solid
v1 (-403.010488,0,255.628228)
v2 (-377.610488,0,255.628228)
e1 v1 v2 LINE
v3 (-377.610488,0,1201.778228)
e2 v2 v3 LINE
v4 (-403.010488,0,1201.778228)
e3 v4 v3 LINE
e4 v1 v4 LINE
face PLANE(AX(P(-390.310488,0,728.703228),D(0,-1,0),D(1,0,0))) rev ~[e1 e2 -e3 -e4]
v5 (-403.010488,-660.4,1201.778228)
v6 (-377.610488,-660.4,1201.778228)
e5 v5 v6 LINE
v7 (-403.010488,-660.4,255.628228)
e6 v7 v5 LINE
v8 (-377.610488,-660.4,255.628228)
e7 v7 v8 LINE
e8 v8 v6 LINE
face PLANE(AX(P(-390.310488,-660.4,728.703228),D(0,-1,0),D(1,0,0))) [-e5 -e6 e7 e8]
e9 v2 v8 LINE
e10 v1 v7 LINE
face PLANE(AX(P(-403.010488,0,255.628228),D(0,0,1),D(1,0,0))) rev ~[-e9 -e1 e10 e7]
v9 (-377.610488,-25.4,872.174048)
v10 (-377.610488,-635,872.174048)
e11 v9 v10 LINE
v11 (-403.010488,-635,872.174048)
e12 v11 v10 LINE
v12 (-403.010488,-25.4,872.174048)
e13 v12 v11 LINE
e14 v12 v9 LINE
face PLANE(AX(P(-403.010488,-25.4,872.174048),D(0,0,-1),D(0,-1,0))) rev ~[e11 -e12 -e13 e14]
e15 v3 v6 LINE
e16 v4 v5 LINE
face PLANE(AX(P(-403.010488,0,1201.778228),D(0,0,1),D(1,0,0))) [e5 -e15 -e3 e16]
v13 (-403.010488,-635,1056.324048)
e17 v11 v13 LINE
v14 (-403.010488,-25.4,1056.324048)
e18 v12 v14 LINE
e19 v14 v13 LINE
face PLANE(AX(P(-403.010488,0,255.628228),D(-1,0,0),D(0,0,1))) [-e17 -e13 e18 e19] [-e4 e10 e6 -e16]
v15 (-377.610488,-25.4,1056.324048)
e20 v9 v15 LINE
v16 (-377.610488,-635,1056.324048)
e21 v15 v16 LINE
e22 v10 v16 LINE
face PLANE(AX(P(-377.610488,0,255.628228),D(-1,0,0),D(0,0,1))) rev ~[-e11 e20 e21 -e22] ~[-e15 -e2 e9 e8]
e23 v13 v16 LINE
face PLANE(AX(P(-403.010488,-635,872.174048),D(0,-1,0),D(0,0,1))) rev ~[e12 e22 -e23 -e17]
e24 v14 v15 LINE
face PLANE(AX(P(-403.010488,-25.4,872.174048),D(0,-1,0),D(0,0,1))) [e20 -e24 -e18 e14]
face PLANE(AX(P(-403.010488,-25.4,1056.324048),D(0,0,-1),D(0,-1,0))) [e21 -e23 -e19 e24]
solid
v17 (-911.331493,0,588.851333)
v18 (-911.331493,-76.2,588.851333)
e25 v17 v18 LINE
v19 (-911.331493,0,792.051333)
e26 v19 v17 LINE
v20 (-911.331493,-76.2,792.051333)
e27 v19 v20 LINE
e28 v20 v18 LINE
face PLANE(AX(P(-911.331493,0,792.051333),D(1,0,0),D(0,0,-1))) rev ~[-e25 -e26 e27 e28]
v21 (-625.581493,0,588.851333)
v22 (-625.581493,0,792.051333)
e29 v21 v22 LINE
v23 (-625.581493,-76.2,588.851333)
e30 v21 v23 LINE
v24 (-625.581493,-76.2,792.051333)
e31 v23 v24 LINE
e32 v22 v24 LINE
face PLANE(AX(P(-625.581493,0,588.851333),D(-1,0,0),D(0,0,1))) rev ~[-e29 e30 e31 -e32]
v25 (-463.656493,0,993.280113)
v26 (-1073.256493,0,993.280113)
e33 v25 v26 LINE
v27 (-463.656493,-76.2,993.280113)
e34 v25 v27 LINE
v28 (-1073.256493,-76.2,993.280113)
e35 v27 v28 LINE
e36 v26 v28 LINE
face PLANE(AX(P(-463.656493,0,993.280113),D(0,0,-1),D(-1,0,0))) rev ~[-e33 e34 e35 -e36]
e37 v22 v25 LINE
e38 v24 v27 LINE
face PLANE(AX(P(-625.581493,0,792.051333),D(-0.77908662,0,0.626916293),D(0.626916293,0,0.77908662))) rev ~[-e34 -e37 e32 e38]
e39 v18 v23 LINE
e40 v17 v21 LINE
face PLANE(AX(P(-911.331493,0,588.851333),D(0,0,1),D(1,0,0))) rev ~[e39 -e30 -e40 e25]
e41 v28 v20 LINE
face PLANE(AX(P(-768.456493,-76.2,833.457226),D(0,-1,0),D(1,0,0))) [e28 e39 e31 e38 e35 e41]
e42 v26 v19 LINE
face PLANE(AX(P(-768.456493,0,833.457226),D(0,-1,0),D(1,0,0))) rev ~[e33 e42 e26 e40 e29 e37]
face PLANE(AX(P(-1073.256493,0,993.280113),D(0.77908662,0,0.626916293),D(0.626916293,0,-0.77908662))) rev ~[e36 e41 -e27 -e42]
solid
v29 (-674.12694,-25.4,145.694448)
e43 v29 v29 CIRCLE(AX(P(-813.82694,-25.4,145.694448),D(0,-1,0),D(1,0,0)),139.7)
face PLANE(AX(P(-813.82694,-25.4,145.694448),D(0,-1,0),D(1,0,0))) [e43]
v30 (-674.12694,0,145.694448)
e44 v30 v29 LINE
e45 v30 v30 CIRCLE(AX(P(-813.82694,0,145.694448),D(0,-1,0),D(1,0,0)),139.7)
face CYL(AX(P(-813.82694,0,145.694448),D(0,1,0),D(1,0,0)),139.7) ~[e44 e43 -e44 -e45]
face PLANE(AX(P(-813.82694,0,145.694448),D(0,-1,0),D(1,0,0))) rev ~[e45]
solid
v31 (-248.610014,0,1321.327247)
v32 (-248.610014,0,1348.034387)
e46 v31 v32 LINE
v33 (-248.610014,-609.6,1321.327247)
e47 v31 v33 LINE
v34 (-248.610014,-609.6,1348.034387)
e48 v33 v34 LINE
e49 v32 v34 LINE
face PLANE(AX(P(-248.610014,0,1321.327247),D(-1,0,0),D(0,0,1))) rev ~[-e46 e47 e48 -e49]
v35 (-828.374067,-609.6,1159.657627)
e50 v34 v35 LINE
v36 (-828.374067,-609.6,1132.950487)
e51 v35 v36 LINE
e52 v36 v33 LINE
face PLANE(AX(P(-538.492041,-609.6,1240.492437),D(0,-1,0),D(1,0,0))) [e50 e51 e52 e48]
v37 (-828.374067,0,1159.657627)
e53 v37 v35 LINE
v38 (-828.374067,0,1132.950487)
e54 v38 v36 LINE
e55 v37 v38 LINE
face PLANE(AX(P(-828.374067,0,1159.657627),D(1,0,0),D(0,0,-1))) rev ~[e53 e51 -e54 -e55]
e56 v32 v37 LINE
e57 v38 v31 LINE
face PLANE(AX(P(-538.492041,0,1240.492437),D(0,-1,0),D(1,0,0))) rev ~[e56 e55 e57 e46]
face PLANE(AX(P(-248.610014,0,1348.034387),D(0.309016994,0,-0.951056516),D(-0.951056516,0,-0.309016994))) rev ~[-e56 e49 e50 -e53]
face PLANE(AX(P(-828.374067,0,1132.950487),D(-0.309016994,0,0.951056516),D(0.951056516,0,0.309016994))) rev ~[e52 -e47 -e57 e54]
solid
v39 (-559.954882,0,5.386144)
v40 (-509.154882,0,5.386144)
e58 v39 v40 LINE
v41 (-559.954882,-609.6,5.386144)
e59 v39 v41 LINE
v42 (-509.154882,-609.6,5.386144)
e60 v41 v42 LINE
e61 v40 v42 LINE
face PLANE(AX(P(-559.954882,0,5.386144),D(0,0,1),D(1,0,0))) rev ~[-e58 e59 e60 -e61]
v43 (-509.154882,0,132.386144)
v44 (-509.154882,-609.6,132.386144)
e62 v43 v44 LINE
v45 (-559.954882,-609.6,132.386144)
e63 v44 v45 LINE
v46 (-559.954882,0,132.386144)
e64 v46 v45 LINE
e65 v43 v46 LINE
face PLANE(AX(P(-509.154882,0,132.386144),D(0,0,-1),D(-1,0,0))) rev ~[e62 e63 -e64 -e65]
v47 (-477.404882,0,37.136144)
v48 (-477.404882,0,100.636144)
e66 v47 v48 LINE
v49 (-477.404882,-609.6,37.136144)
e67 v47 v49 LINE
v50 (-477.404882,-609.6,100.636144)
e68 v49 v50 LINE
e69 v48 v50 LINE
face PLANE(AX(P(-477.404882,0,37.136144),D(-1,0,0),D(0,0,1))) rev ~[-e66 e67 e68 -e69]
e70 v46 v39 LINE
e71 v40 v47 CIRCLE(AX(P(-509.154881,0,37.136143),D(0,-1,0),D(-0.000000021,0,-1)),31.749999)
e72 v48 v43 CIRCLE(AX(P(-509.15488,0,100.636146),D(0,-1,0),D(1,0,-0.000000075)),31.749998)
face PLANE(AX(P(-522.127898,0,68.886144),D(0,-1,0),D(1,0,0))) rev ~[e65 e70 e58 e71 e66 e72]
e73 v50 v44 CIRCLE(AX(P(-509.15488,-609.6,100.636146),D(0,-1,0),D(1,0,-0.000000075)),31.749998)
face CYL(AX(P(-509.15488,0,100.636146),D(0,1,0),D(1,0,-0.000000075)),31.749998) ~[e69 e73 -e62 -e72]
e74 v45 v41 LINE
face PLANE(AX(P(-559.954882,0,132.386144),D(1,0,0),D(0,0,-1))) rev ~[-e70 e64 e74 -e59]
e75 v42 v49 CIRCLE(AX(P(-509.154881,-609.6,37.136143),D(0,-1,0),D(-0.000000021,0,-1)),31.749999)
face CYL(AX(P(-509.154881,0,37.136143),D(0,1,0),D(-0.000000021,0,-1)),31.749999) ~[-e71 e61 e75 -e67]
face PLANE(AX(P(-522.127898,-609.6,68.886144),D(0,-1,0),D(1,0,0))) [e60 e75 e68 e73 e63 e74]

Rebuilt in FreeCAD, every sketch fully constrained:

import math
import FreeCAD as App
import Part
import Sketcher
from FreeCAD import Vector
Q = App.Units.Quantity

doc = App.newDocument("Part")
body = doc.addObject("PartDesign::Body", "Body")

# Sketch on XZ plane
sketch1 = doc.addObject("Sketcher::SketchObject", "Sketch")
body.addObject(sketch1)
sketch1.AttachmentSupport = (doc.XZ_Plane, [""])
sketch1.MapMode = "FlatFace"
sketch1.addGeometry(Part.Circle(Vector(-813.82694, 145.694448, 0), Vector(0, 0, 1), 139.7), False)
sketch1.addConstraint(Sketcher.Constraint("Diameter", 0, Q("11 in")))
sketch1.addConstraint(Sketcher.Constraint("DistanceX", 0, 3, -1, 1, Q("813.82694 mm")))
sketch1.addConstraint(Sketcher.Constraint("DistanceY", -1, 1, 0, 3, Q("145.694448 mm")))
pad1 = doc.addObject("PartDesign::Pad", "Pad")
body.addObject(pad1)
pad1.Profile = sketch1
pad1.Length = Q("1 in")
body2 = doc.addObject("PartDesign::Body", "Body001")

# Sketch on XZ plane
sketch2 = doc.addObject("Sketcher::SketchObject", "Sketch001")
body2.addObject(sketch2)
sketch2.AttachmentSupport = (doc.getObject("XZ_Plane001"), [""])
sketch2.MapMode = "FlatFace"
sketch2.addGeometry(Part.LineSegment(Vector(-559.954882, 132.386144, 0), Vector(-559.954882, 5.386144, 0)), False)
sketch2.addGeometry(Part.LineSegment(Vector(-559.954882, 5.386144, 0), Vector(-509.154882, 5.386144, 0)), False)
sketch2.addGeometry(Part.ArcOfCircle(Part.Circle(Vector(-509.154881, 37.136143, 0), Vector(0, 0, 1), 31.749999), math.radians(-90.000001), math.radians(0.000001)), False)
sketch2.addGeometry(Part.LineSegment(Vector(-477.404882, 37.136144, 0), Vector(-477.404882, 100.636144, 0)), False)
sketch2.addGeometry(Part.ArcOfCircle(Part.Circle(Vector(-509.15488, 100.636146, 0), Vector(0, 0, 1), 31.749998), math.radians(-0.000004), math.radians(90.000004)), False)
sketch2.addGeometry(Part.LineSegment(Vector(-509.154882, 132.386144, 0), Vector(-559.954882, 132.386144, 0)), False)
sketch2.addConstraint(Sketcher.Constraint("Coincident", 0, 2, 1, 1))
sketch2.addConstraint(Sketcher.Constraint("Tangent", 1, 2, 2, 1))
sketch2.addConstraint(Sketcher.Constraint("Tangent", 2, 2, 3, 1))
sketch2.addConstraint(Sketcher.Constraint("Tangent", 3, 2, 4, 1))
sketch2.addConstraint(Sketcher.Constraint("Tangent", 4, 2, 5, 1))
sketch2.addConstraint(Sketcher.Constraint("Coincident", 5, 2, 0, 1))
sketch2.addConstraint(Sketcher.Constraint("Vertical", 0))
sketch2.addConstraint(Sketcher.Constraint("Horizontal", 1))
sketch2.addConstraint(Sketcher.Constraint("Vertical", 3))
sketch2.addConstraint(Sketcher.Constraint("Horizontal", 5))
sketch2.addConstraint(Sketcher.Constraint("Equal", 2, 4))
sketch2.addConstraint(Sketcher.Constraint("DistanceX", 1, 1, 1, 2, Q("2 in")))
sketch2.addConstraint(Sketcher.Constraint("DistanceY", 0, 2, 0, 1, Q("5 in")))
sketch2.addConstraint(Sketcher.Constraint("Radius", 2, Q("1.25 in")))
sketch2.addConstraint(Sketcher.Constraint("DistanceX", 2, 3, -1, 1, Q("509.154881 mm")))
sketch2.addConstraint(Sketcher.Constraint("DistanceY", -1, 1, 2, 3, Q("37.136143 mm")))
pad2 = doc.addObject("PartDesign::Pad", "Pad001")
body2.addObject(pad2)
pad2.Profile = sketch2
pad2.Length = Q("24 in")
body3 = doc.addObject("PartDesign::Body", "Body002")

# Sketch on XZ plane
sketch3 = doc.addObject("Sketcher::SketchObject", "Sketch002")
body3.addObject(sketch3)
sketch3.AttachmentSupport = (doc.getObject("XZ_Plane002"), [""])
sketch3.MapMode = "FlatFace"
sketch3.addGeometry(Part.LineSegment(Vector(-403.010488, 1201.778228, 0), Vector(-403.010488, 255.628228, 0)), False)
sketch3.addGeometry(Part.LineSegment(Vector(-403.010488, 255.628228, 0), Vector(-377.610488, 255.628228, 0)), False)
sketch3.addGeometry(Part.LineSegment(Vector(-377.610488, 255.628228, 0), Vector(-377.610488, 1201.778228, 0)), False)
sketch3.addGeometry(Part.LineSegment(Vector(-377.610488, 1201.778228, 0), Vector(-403.010488, 1201.778228, 0)), False)
sketch3.addConstraint(Sketcher.Constraint("Coincident", 0, 2, 1, 1))
sketch3.addConstraint(Sketcher.Constraint("Coincident", 1, 2, 2, 1))
sketch3.addConstraint(Sketcher.Constraint("Coincident", 2, 2, 3, 1))
sketch3.addConstraint(Sketcher.Constraint("Coincident", 3, 2, 0, 1))
sketch3.addConstraint(Sketcher.Constraint("Vertical", 0))
sketch3.addConstraint(Sketcher.Constraint("Horizontal", 1))
sketch3.addConstraint(Sketcher.Constraint("Vertical", 2))
sketch3.addConstraint(Sketcher.Constraint("Horizontal", 3))
sketch3.addConstraint(Sketcher.Constraint("DistanceX", 1, 1, 1, 2, Q("1 in")))
sketch3.addConstraint(Sketcher.Constraint("DistanceY", 0, 2, 0, 1, Q("37.25 in")))
sketch3.addConstraint(Sketcher.Constraint("DistanceX", 0, 2, -1, 1, Q("403.010488 mm")))
sketch3.addConstraint(Sketcher.Constraint("DistanceY", -1, 1, 0, 2, Q("255.628228 mm")))
pad3 = doc.addObject("PartDesign::Pad", "Pad002")
body3.addObject(pad3)
pad3.Profile = sketch3
pad3.Length = Q("26 in")

# Sketch on YZ plane
sketch4 = doc.addObject("Sketcher::SketchObject", "Sketch003")
body3.addObject(sketch4)
sketch4.AttachmentSupport = (doc.getObject("YZ_Plane002"), [""])
sketch4.MapMode = "FlatFace"
sketch4.AttachmentOffset = App.Placement(Vector(0, 0, -403.010488), App.Rotation())
sketch4.addGeometry(Part.LineSegment(Vector(-25.4, 1056.324048, 0), Vector(-25.4, 872.174048, 0)), False)
sketch4.addGeometry(Part.LineSegment(Vector(-25.4, 872.174048, 0), Vector(-635, 872.174048, 0)), False)
sketch4.addGeometry(Part.LineSegment(Vector(-635, 872.174048, 0), Vector(-635, 1056.324048, 0)), False)
sketch4.addGeometry(Part.LineSegment(Vector(-635, 1056.324048, 0), Vector(-25.4, 1056.324048, 0)), False)
sketch4.addConstraint(Sketcher.Constraint("Coincident", 0, 2, 1, 1))
sketch4.addConstraint(Sketcher.Constraint("Coincident", 1, 2, 2, 1))
sketch4.addConstraint(Sketcher.Constraint("Coincident", 2, 2, 3, 1))
sketch4.addConstraint(Sketcher.Constraint("Coincident", 3, 2, 0, 1))
sketch4.addConstraint(Sketcher.Constraint("Vertical", 0))
sketch4.addConstraint(Sketcher.Constraint("Horizontal", 1))
sketch4.addConstraint(Sketcher.Constraint("Vertical", 2))
sketch4.addConstraint(Sketcher.Constraint("Horizontal", 3))
sketch4.addConstraint(Sketcher.Constraint("DistanceX", 1, 2, 1, 1, Q("24 in")))
sketch4.addConstraint(Sketcher.Constraint("DistanceX", 0, 2, -1, 1, Q("1 in")))
sketch4.addConstraint(Sketcher.Constraint("DistanceY", 0, 2, 0, 1, Q("7.25 in")))
sketch4.addConstraint(Sketcher.Constraint("DistanceY", -1, 1, 0, 2, Q("872.174048 mm")))
pocket1 = doc.addObject("PartDesign::Pocket", "Pocket")
body3.addObject(pocket1)
pocket1.Profile = sketch4
pocket1.Length = Q("1.1 in")
pocket1.Reversed = True
body4 = doc.addObject("PartDesign::Body", "Body003")

# Sketch on XZ plane
sketch5 = doc.addObject("Sketcher::SketchObject", "Sketch004")
body4.addObject(sketch5)
sketch5.AttachmentSupport = (doc.getObject("XZ_Plane003"), [""])
sketch5.MapMode = "FlatFace"
sketch5.addGeometry(Part.LineSegment(Vector(-248.610014, 1348.034387, 0), Vector(-828.374067, 1159.657627, 0)), False)
sketch5.addGeometry(Part.LineSegment(Vector(-828.374067, 1159.657627, 0), Vector(-828.374067, 1132.950487, 0)), False)
sketch5.addGeometry(Part.LineSegment(Vector(-828.374067, 1132.950487, 0), Vector(-248.610014, 1321.327247, 0)), False)
sketch5.addGeometry(Part.LineSegment(Vector(-248.610014, 1321.327247, 0), Vector(-248.610014, 1348.034387, 0)), False)
sketch5.addConstraint(Sketcher.Constraint("Coincident", 0, 2, 1, 1))
sketch5.addConstraint(Sketcher.Constraint("Coincident", 1, 2, 2, 1))
sketch5.addConstraint(Sketcher.Constraint("Coincident", 2, 2, 3, 1))
sketch5.addConstraint(Sketcher.Constraint("Coincident", 3, 2, 0, 1))
sketch5.addConstraint(Sketcher.Constraint("Vertical", 1))
sketch5.addConstraint(Sketcher.Constraint("Vertical", 3))
sketch5.addConstraint(Sketcher.Constraint("Parallel", 0, 2))
sketch5.addConstraint(Sketcher.Constraint("Distance", 0, Q("24 in")))
sketch5.addConstraint(Sketcher.Constraint("Angle", 0, Q("-162 deg")))
sketch5.addConstraint(Sketcher.Constraint("DistanceY", 1, 2, 1, 1, Q("26.70714 mm")))
sketch5.addConstraint(Sketcher.Constraint("DistanceX", 0, 2, -1, 1, Q("828.374067 mm")))
sketch5.addConstraint(Sketcher.Constraint("DistanceY", -1, 1, 0, 2, Q("1159.657627 mm")))
pad4 = doc.addObject("PartDesign::Pad", "Pad003")
body4.addObject(pad4)
pad4.Profile = sketch5
pad4.Length = Q("24 in")
body5 = doc.addObject("PartDesign::Body", "Body004")

# Sketch on XZ plane
sketch6 = doc.addObject("Sketcher::SketchObject", "Sketch005")
body5.addObject(sketch6)
sketch6.AttachmentSupport = (doc.getObject("XZ_Plane004"), [""])
sketch6.MapMode = "FlatFace"
sketch6.addGeometry(Part.LineSegment(Vector(-463.656493, 993.280113, 0), Vector(-1073.256493, 993.280113, 0)), False)
sketch6.addGeometry(Part.LineSegment(Vector(-1073.256493, 993.280113, 0), Vector(-911.331493, 792.051333, 0)), False)
sketch6.addGeometry(Part.LineSegment(Vector(-911.331493, 792.051333, 0), Vector(-911.331493, 588.851333, 0)), False)
sketch6.addGeometry(Part.LineSegment(Vector(-911.331493, 588.851333, 0), Vector(-625.581493, 588.851333, 0)), False)
sketch6.addGeometry(Part.LineSegment(Vector(-625.581493, 588.851333, 0), Vector(-625.581493, 792.051333, 0)), False)
sketch6.addGeometry(Part.LineSegment(Vector(-625.581493, 792.051333, 0), Vector(-463.656493, 993.280113, 0)), False)
sketch6.addConstraint(Sketcher.Constraint("Coincident", 0, 2, 1, 1))
sketch6.addConstraint(Sketcher.Constraint("Coincident", 1, 2, 2, 1))
sketch6.addConstraint(Sketcher.Constraint("Coincident", 2, 2, 3, 1))
sketch6.addConstraint(Sketcher.Constraint("Coincident", 3, 2, 4, 1))
sketch6.addConstraint(Sketcher.Constraint("Coincident", 4, 2, 5, 1))
sketch6.addConstraint(Sketcher.Constraint("Coincident", 5, 2, 0, 1))
sketch6.addConstraint(Sketcher.Constraint("Horizontal", 0))
sketch6.addConstraint(Sketcher.Constraint("Vertical", 2))
sketch6.addConstraint(Sketcher.Constraint("Horizontal", 3))
sketch6.addConstraint(Sketcher.Constraint("Vertical", 4))
sketch6.addConstraint(Sketcher.Constraint("Horizontal", 1, 2, 4, 2))
sketch6.addConstraint(Sketcher.Constraint("Equal", 1, 5))
sketch6.addConstraint(Sketcher.Constraint("DistanceX", 0, 2, 0, 1, Q("24 in")))
sketch6.addConstraint(Sketcher.Constraint("DistanceY", 2, 2, 2, 1, Q("8 in")))
sketch6.addConstraint(Sketcher.Constraint("DistanceX", 3, 1, 3, 2, Q("11.25 in")))
sketch6.addConstraint(Sketcher.Constraint("Distance", 1, Q("258.288071 mm")))
sketch6.addConstraint(Sketcher.Constraint("DistanceX", 0, 2, -1, 1, Q("1073.256493 mm")))
sketch6.addConstraint(Sketcher.Constraint("DistanceY", -1, 1, 0, 2, Q("993.280113 mm")))
pad5 = doc.addObject("PartDesign::Pad", "Pad004")
body5.addObject(pad5)
pad5.Profile = sketch6
pad5.Length = Q("3 in")

doc.recompute()
